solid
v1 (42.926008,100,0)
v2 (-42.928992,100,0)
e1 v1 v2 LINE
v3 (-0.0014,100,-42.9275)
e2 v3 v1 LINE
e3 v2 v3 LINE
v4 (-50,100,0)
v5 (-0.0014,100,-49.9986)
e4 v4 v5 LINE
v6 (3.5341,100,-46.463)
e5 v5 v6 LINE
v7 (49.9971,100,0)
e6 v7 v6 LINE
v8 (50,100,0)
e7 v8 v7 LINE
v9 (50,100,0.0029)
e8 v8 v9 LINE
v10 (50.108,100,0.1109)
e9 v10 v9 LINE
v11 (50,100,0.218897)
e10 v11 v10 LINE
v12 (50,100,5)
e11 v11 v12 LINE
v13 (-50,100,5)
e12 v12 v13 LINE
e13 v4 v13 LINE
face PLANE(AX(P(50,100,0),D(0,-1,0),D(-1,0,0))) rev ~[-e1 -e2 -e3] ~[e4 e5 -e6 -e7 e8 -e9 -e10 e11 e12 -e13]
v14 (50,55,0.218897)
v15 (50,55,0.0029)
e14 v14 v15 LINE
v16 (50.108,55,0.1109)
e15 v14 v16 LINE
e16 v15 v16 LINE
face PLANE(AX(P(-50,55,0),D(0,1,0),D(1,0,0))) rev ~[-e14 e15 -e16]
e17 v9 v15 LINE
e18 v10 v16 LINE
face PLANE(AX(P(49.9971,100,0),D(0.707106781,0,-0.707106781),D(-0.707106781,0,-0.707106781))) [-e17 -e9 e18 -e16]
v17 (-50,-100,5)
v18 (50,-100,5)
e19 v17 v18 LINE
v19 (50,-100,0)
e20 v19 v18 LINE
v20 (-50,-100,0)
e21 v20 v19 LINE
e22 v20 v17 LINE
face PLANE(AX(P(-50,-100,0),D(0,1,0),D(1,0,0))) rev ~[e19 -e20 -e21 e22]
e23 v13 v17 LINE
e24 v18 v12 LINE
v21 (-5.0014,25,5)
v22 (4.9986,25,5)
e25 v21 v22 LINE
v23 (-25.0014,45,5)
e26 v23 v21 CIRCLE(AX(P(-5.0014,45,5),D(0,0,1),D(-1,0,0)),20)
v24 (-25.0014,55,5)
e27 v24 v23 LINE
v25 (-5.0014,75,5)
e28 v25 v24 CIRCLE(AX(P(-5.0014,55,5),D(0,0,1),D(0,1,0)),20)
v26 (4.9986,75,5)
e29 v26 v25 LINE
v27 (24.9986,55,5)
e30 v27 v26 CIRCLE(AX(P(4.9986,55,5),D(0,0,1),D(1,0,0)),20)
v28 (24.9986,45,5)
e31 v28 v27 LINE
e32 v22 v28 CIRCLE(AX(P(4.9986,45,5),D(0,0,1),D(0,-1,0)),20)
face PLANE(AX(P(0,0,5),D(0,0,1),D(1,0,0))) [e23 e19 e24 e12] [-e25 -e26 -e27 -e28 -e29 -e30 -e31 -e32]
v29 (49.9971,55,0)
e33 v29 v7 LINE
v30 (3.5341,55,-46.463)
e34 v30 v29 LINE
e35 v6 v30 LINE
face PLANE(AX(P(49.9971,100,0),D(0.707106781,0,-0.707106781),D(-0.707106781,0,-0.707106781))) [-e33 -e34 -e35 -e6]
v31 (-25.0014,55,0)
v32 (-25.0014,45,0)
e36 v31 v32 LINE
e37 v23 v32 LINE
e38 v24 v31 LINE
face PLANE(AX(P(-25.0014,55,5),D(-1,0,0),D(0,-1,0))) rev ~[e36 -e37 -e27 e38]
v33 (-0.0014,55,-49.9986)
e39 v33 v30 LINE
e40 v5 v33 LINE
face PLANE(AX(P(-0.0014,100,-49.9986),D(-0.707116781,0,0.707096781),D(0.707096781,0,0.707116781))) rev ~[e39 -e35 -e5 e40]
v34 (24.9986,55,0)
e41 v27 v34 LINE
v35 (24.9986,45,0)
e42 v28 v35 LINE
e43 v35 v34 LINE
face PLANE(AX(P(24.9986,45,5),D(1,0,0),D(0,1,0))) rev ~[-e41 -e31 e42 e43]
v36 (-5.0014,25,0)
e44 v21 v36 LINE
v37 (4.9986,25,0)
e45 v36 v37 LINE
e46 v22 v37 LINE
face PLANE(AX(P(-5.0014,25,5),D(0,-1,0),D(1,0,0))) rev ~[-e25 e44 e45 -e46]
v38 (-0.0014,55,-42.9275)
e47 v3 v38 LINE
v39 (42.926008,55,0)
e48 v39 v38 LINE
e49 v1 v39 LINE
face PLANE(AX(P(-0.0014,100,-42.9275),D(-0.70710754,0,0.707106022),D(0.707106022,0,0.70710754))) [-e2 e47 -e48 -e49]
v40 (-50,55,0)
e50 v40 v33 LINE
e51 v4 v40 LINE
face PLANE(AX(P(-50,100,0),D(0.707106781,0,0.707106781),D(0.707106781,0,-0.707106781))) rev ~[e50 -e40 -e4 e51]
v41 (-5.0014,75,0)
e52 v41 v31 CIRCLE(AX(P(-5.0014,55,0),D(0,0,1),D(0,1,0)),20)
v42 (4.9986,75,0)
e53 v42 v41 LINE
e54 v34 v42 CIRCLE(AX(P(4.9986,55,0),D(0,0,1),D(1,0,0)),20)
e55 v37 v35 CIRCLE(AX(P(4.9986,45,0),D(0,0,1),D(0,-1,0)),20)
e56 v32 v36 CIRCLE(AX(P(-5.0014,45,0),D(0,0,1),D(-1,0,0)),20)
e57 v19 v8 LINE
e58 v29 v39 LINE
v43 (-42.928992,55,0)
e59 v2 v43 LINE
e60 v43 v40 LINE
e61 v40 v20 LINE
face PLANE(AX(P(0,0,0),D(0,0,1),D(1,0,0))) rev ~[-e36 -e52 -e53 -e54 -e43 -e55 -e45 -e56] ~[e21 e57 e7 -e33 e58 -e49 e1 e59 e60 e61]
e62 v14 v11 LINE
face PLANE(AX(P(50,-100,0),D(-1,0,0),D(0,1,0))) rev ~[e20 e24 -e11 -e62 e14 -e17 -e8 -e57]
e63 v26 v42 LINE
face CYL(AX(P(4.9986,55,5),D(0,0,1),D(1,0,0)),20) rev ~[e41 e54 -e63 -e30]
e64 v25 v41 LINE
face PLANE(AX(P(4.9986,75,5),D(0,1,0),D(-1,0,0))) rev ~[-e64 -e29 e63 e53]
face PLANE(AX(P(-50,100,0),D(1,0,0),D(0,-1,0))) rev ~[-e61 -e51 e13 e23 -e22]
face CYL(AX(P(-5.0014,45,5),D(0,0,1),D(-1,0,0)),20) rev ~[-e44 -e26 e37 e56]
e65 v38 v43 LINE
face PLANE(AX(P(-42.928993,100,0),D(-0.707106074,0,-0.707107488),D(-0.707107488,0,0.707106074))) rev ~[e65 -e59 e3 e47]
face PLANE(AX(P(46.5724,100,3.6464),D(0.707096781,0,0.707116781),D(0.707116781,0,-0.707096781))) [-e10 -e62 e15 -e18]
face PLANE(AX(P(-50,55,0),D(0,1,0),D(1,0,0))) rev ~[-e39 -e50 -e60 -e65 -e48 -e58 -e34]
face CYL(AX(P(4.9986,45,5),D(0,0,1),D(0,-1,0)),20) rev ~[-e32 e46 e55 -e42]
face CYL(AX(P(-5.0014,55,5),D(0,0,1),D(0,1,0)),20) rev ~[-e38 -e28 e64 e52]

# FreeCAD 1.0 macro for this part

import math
import FreeCAD as App
import Part
import Sketcher


def add_polygon(sketch, points):
    """Adds a closed chain of lines whose ends are joined by coincident constraints."""
    first, n = sketch.GeometryCount, len(points)
    for a, b in zip(points, points[1:] + points[:1]):
        sketch.addGeometry(Part.LineSegment(App.Vector(*a, 0), App.Vector(*b, 0)), False)
    for i in range(n):
        sketch.addConstraint(Sketcher.Constraint("Coincident", first + i, 2, first + (i + 1) % n, 1))

doc = App.newDocument("Part")
body = doc.addObject("PartDesign::Body", "Body")

sketch1 = body.newObject("Sketcher::SketchObject", "Sketch")
sketch1.AttachmentSupport = (doc.getObject("XY_Plane"), [""])
sketch1.MapMode = "FlatFace"
add_polygon(sketch1, [(-50, 100), (-50, -100), (50, -100), (50, 100)])
sketch1.addConstraint([
    Sketcher.Constraint("Vertical", 0),
    Sketcher.Constraint("Horizontal", 1),
    Sketcher.Constraint("Vertical", 2),
    Sketcher.Constraint("Horizontal", 3),
    Sketcher.Constraint("Symmetric", 0, 2, 2, 2, -1, 1),
    Sketcher.Constraint("DistanceX", 1, 1, 1, 2, 100.0),
    Sketcher.Constraint("DistanceY", 0, 2, 0, 1, 200.0),
])
pad1 = body.newObject("PartDesign::Pad", "Pad")
pad1.Profile = sketch1
pad1.Length = 5

sketch2 = body.newObject("Sketcher::SketchObject", "Sketch001")
sketch2.AttachmentSupport = (doc.getObject("XZ_Plane"), [""])
sketch2.MapMode = "FlatFace"
sketch2.AttachmentOffset = App.Placement(App.Vector(0, 0, -100), App.Rotation())
add_polygon(sketch2, [(0, -50), (-50, 0), (-46.5, 3.5), (0, -42.9), (46.6, 3.6), (50.1, 0.1), (3.5, -46.5)])
sketch2.addConstraint([
    Sketcher.Constraint("PointOnObject", 0, 2, -1),
    Sketcher.Constraint("Perpendicular", 0, 1),
    Sketcher.Constraint("Perpendicular", 1, 2),
    Sketcher.Constraint("Perpendicular", 2, 3),
    Sketcher.Constraint("Perpendicular", 3, 4),
    Sketcher.Constraint("Perpendicular", 4, 5),
    Sketcher.Constraint("Parallel", 5, 6),
    Sketcher.Constraint("Vertical", 2, 2, 6, 2),
    Sketcher.Constraint("Equal", 1, 4),
    Sketcher.Constraint("Equal", 3, 5),
    Sketcher.Constraint("Distance", 1, 5.0),
    Sketcher.Constraint("DistanceX", 0, 2, -1, 1, 50.0),
    Sketcher.Constraint("DistanceX", -1, 1, 4, 2, 50.108),
    Sketcher.Constraint("DistanceY", -1, 1, 4, 2, 0.111),
])
pad2 = body.newObject("PartDesign::Pad", "Pad001")
pad2.Profile = sketch2
pad2.Length = 45

sketch3 = body.newObject("Sketcher::SketchObject", "Sketch002")
sketch3.AttachmentSupport = (doc.getObject("XY_Plane"), [""])
sketch3.MapMode = "FlatFace"
sketch3.AttachmentOffset = App.Placement(App.Vector(0, 0, 5), App.Rotation())
sketch3.addGeometry([
    Part.ArcOfCircle(Part.Circle(App.Vector(5, 55, 0), App.Vector(0, 0, 1), 20), math.radians(0), math.radians(90)),
    Part.LineSegment(App.Vector(5, 75, 0), App.Vector(-5, 75, 0)),
    Part.ArcOfCircle(Part.Circle(App.Vector(-5, 55, 0), App.Vector(0, 0, 1), 20), math.radians(90), math.radians(180)),
    Part.LineSegment(App.Vector(-25, 55, 0), App.Vector(-25, 45, 0)),
    Part.ArcOfCircle(Part.Circle(App.Vector(-5, 45, 0), App.Vector(0, 0, 1), 20), math.radians(180), math.radians(270)),
    Part.LineSegment(App.Vector(-5, 25, 0), App.Vector(5, 25, 0)),
    Part.ArcOfCircle(Part.Circle(App.Vector(5, 45, 0), App.Vector(0, 0, 1), 20), math.radians(-90), math.radians(0)),
    Part.LineSegment(App.Vector(25, 45, 0), App.Vector(25, 55, 0)),
], False)
sketch3.addConstraint([
    Sketcher.Constraint("Tangent", 0, 2, 1, 1),
    Sketcher.Constraint("Tangent", 1, 2, 2, 1),
    Sketcher.Constraint("Tangent", 2, 2, 3, 1),
    Sketcher.Constraint("Tangent", 3, 2, 4, 1),
    Sketcher.Constraint("Tangent", 4, 2, 5, 1),
    Sketcher.Constraint("Tangent", 5, 2, 6, 1),
    Sketcher.Constraint("Tangent", 6, 2, 7, 1),
    Sketcher.Constraint("Tangent", 7, 2, 0, 1),
    Sketcher.Constraint("Horizontal", 1),
    Sketcher.Constraint("Vertical", 3),
    Sketcher.Constraint("Horizontal", 5),
    Sketcher.Constraint("Vertical", 7),
    Sketcher.Constraint("Equal", 0, 2),
    Sketcher.Constraint("Equal", 2, 4),
    Sketcher.Constraint("Equal", 4, 6),
    Sketcher.Constraint("Equal", 5, 3),
    Sketcher.Constraint("Radius", 0, 20.0),
    Sketcher.Constraint("DistanceX", 1, 2, 1, 1, 10.0),
    Sketcher.Constraint("DistanceY", -1, 1, 0, 3, 55.0),
    Sketcher.Constraint("DistanceX", -1, 1, 0, 3, 4.9986),
])
pocket1 = body.newObject("PartDesign::Pocket", "Pocket")
pocket1.Profile = sketch3
pocket1.Length = 5

doc.recompute()
